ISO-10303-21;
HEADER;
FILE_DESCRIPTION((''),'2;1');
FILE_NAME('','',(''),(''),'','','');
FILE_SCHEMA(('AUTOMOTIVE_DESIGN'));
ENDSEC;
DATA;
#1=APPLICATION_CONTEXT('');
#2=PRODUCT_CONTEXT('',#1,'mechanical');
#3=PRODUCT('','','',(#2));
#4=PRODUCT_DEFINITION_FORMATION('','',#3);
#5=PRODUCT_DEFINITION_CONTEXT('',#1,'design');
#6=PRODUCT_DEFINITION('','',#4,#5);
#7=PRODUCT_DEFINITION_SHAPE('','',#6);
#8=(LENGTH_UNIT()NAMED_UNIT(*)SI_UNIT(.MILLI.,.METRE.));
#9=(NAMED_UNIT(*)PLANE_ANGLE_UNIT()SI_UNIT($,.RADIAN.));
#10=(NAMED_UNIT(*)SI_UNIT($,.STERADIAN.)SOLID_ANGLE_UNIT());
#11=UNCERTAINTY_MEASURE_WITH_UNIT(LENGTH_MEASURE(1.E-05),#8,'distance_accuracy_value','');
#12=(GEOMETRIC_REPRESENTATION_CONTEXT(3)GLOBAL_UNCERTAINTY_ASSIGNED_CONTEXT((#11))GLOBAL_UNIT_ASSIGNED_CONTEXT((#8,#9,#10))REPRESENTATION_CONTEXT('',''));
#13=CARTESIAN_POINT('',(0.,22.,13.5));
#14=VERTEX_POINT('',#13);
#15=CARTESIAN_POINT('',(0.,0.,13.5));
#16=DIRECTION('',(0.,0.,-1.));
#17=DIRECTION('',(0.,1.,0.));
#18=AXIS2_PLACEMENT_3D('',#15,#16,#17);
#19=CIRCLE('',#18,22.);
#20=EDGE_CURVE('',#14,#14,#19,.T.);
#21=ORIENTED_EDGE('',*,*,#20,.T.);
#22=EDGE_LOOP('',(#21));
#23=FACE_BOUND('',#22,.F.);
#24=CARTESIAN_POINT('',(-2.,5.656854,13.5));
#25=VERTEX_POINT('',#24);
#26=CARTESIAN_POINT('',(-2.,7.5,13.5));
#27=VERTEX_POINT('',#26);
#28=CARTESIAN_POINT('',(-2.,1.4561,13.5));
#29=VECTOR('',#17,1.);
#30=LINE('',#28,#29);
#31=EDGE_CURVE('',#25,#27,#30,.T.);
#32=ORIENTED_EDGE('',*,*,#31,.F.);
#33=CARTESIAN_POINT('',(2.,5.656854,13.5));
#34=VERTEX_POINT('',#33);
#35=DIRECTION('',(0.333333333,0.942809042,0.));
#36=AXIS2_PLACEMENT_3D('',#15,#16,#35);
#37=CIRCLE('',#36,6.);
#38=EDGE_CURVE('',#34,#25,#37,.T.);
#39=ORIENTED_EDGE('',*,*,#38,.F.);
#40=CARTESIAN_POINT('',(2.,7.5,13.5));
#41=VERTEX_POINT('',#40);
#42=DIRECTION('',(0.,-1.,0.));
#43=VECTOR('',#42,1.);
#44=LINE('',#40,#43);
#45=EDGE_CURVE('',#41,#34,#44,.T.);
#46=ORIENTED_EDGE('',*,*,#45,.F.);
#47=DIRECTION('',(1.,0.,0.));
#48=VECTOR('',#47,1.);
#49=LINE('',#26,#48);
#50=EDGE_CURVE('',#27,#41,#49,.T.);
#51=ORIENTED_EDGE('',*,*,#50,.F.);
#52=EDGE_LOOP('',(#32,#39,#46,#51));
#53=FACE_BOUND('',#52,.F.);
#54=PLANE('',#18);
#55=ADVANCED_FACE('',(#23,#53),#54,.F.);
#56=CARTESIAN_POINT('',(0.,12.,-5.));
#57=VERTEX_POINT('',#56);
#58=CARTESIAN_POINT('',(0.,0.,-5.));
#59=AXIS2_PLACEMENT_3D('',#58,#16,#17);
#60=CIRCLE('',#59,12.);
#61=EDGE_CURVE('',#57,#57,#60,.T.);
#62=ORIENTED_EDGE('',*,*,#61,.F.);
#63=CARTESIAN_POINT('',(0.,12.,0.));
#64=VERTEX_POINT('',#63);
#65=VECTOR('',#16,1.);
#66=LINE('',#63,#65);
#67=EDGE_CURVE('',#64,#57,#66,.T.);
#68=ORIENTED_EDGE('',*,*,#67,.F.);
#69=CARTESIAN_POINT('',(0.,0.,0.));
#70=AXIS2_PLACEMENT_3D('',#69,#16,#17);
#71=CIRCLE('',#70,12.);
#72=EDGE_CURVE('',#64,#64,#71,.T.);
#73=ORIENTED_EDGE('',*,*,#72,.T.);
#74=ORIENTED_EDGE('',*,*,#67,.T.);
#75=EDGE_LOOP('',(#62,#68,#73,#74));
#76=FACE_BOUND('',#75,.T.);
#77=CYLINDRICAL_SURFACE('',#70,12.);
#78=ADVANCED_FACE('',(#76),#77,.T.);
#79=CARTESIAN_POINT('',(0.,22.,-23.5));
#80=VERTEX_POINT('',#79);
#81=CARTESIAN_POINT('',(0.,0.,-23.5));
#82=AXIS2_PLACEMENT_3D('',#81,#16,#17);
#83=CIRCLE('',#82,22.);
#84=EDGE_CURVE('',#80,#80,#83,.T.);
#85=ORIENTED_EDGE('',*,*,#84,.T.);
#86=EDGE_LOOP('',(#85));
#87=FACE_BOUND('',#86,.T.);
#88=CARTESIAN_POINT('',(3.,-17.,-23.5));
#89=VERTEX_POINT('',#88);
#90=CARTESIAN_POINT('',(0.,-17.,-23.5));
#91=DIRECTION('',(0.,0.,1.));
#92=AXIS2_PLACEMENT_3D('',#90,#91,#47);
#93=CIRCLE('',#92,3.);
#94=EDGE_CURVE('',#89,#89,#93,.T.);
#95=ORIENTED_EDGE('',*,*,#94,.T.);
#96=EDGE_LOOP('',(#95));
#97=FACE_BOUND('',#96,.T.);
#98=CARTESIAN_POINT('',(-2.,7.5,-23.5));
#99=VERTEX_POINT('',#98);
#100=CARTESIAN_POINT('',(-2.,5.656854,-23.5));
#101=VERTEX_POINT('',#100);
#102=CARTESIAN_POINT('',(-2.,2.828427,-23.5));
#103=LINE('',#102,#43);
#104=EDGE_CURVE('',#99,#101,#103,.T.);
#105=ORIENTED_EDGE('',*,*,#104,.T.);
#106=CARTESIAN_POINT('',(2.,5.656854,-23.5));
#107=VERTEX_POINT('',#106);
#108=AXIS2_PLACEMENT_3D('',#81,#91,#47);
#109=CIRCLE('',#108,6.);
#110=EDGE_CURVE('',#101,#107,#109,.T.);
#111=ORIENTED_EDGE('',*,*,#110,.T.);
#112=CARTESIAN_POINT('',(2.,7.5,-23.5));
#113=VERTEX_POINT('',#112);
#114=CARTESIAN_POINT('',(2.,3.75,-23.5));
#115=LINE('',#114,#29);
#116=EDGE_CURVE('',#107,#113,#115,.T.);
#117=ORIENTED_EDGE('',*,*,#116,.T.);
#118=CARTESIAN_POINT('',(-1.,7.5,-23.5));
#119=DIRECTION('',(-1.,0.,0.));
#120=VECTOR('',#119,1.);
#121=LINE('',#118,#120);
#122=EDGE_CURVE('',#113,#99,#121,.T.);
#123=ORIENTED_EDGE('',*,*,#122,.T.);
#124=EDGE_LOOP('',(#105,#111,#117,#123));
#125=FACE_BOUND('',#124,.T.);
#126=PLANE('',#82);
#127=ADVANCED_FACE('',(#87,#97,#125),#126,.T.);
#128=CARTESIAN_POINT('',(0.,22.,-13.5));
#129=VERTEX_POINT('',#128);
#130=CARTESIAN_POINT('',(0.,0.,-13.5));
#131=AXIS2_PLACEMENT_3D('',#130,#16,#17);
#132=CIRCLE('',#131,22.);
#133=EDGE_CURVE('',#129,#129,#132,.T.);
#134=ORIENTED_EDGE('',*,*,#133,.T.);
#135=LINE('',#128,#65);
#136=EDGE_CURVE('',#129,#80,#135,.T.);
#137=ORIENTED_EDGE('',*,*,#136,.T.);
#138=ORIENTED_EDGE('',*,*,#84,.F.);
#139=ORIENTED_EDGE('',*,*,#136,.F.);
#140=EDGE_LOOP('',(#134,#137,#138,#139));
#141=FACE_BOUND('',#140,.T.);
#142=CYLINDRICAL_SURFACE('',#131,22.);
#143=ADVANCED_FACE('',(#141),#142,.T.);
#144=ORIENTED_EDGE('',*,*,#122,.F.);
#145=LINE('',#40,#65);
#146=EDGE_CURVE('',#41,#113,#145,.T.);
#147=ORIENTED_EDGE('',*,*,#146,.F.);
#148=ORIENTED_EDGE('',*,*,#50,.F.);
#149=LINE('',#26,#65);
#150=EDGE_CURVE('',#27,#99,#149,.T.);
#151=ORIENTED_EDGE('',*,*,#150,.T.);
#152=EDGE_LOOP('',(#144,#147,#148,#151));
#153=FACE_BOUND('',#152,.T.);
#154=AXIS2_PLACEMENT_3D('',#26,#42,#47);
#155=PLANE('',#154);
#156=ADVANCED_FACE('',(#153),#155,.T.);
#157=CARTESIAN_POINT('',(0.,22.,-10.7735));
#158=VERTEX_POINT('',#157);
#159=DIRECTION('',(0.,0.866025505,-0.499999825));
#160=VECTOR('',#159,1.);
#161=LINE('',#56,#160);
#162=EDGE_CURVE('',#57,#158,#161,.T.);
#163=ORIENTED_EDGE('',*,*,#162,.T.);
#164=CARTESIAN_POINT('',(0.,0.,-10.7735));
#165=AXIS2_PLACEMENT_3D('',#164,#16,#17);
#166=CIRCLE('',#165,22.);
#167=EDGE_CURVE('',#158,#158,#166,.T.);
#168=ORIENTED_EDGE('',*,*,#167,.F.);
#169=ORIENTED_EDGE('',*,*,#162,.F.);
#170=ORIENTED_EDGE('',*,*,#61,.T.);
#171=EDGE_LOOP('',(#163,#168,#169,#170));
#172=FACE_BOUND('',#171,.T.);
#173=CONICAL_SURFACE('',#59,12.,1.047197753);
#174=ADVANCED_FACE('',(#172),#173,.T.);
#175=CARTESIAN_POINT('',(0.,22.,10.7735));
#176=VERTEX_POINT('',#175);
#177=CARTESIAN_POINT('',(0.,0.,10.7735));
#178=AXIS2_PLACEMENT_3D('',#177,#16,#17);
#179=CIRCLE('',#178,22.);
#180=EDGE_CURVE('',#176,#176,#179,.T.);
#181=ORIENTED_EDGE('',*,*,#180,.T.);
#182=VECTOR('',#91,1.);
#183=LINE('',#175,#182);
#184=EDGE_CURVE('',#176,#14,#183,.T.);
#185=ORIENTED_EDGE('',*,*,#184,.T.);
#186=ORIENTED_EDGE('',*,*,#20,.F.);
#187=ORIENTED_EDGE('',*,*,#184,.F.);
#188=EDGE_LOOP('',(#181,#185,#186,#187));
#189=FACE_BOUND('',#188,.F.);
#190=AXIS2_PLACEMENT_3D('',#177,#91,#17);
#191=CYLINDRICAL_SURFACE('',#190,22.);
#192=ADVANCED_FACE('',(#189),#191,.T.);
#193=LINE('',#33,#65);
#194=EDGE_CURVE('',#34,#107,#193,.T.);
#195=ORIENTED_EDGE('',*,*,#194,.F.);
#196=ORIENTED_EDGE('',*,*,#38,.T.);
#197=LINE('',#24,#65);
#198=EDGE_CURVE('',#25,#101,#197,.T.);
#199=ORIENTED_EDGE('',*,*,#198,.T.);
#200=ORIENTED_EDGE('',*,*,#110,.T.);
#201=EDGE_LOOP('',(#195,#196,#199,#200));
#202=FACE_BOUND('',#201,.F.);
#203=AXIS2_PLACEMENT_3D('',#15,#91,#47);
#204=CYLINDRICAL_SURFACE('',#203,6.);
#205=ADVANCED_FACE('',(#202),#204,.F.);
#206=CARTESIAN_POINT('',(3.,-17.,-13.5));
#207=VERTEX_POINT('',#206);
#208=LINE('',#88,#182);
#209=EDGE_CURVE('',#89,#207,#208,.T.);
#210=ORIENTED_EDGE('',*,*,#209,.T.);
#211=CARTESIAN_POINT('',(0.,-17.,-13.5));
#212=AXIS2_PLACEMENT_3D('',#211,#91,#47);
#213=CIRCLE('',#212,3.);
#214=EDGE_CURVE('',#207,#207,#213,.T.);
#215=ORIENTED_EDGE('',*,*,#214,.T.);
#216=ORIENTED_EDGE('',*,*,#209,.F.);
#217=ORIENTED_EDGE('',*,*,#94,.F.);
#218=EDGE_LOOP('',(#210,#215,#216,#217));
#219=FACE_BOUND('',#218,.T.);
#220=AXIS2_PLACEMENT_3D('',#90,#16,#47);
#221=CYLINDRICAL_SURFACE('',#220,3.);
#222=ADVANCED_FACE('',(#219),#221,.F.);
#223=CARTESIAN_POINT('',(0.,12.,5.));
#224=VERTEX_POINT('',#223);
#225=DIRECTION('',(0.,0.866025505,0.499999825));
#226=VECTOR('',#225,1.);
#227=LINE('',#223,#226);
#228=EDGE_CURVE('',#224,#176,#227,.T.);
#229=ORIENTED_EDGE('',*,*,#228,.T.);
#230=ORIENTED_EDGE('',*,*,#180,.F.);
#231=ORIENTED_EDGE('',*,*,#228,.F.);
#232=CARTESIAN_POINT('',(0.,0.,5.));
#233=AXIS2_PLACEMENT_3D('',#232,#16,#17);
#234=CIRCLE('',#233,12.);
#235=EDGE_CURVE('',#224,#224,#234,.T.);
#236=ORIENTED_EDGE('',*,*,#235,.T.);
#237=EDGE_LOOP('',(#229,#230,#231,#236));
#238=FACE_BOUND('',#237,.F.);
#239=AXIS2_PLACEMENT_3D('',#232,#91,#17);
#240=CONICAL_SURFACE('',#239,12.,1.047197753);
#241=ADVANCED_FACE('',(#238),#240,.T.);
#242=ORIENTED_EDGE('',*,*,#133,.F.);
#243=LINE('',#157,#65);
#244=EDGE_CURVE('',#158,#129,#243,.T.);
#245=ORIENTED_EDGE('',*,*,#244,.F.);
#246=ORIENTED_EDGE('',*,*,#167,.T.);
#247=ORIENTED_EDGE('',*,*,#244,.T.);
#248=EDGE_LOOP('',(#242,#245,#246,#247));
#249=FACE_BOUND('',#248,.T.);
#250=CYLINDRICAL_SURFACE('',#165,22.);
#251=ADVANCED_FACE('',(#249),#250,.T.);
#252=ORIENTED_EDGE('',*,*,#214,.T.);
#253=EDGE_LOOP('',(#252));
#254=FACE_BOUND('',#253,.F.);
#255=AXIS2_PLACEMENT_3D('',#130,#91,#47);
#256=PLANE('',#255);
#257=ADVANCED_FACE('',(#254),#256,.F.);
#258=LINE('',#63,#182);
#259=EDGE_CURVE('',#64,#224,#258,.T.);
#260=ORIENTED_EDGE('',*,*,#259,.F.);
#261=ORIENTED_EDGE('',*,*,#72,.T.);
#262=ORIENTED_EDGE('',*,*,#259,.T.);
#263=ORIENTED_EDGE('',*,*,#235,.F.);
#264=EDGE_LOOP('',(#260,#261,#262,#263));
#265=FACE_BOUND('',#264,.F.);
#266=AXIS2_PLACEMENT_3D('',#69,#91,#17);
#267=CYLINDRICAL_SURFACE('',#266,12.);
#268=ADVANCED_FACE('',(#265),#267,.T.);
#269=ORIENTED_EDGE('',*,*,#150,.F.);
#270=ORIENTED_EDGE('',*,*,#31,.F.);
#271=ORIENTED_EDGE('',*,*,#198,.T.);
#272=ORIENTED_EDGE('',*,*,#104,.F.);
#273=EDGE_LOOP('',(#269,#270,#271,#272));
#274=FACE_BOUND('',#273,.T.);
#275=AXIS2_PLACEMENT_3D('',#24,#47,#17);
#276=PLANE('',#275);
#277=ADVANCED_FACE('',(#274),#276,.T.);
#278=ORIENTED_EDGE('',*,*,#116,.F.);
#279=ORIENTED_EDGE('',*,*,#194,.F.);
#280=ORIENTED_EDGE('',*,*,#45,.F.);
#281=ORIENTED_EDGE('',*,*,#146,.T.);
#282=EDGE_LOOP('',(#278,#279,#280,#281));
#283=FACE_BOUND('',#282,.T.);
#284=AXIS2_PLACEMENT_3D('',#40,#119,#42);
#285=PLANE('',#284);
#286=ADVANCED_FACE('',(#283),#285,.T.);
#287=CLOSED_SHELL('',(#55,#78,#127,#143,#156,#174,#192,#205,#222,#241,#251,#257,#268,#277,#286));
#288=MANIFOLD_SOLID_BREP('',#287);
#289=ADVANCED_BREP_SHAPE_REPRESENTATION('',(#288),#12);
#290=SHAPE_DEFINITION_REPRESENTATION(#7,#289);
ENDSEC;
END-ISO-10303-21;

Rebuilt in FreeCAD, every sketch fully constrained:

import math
import FreeCAD as App
import Part
import Sketcher
from FreeCAD import Vector
Q = App.Units.Quantity

doc = App.newDocument("Part")
body = doc.addObject("PartDesign::Body", "Body")

sketch1 = doc.addObject("Sketcher::SketchObject", "Sketch")
body.addObject(sketch1)
sketch1.AttachmentSupport = (doc.YZ_Plane, [""])
sketch1.MapMode = "FlatFace"
sketch1.addGeometry([
    Part.LineSegment(Vector(12, -5, 0), Vector(12, 5, 0)),
    Part.LineSegment(Vector(12, 5, 0), Vector(22, 10.7735, 0)),
    Part.LineSegment(Vector(22, 10.7735, 0), Vector(22, 13.5, 0)),
    Part.LineSegment(Vector(22, 13.5, 0), Vector(0, 13.5, 0)),
    Part.LineSegment(Vector(0, 13.5, 0), Vector(0, -23.5, 0)),
    Part.LineSegment(Vector(0, -23.5, 0), Vector(22, -23.5, 0)),
    Part.LineSegment(Vector(22, -23.5, 0), Vector(22, -10.7735, 0)),
    Part.LineSegment(Vector(22, -10.7735, 0), Vector(12, -5, 0)),
], False)
sketch1.addConstraint([
    Sketcher.Constraint("Coincident", 0, 2, 1, 1),
    Sketcher.Constraint("Coincident", 1, 2, 2, 1),
    Sketcher.Constraint("Coincident", 2, 2, 3, 1),
    Sketcher.Constraint("Coincident", 3, 2, 4, 1),
    Sketcher.Constraint("Coincident", 4, 2, 5, 1),
    Sketcher.Constraint("Coincident", 5, 2, 6, 1),
    Sketcher.Constraint("Coincident", 6, 2, 7, 1),
    Sketcher.Constraint("Coincident", 7, 2, 0, 1),
    Sketcher.Constraint("Vertical", 0),
    Sketcher.Constraint("Vertical", 2),
    Sketcher.Constraint("Horizontal", 3),
    Sketcher.Constraint("Vertical", 4),
    Sketcher.Constraint("Horizontal", 5),
    Sketcher.Constraint("Vertical", 6),
    Sketcher.Constraint("Symmetric", 1, 2, 6, 2, -1),
    Sketcher.Constraint("PointOnObject", 3, 2, -2),
    Sketcher.Constraint("Equal", 1, 7),
    Sketcher.Constraint("DistanceX", 3, 2, 3, 1, Q("22 mm")),
    Sketcher.Constraint("DistanceY", 0, 1, 0, 2, Q("10 mm")),
    Sketcher.Constraint("DistanceX", 0, 2, 1, 2, Q("10 mm")),
    Sketcher.Constraint("DistanceY", -1, 1, 2, 2, Q("13.5 mm")),
    Sketcher.Constraint("DistanceY", 4, 2, 4, 1, Q("37 mm")),
    Sketcher.Constraint("Angle", 1, Q("30 deg")),
])
revolution = doc.addObject("PartDesign::Revolution", "Revolution")
body.addObject(revolution)
revolution.Profile = sketch1
revolution.ReferenceAxis = (sketch1, ["V_Axis"])
revolution.Angle = 360

sketch2 = doc.addObject("Sketcher::SketchObject", "Sketch001")
body.addObject(sketch2)
sketch2.AttachmentSupport = (doc.XY_Plane, [""])
sketch2.MapMode = "FlatFace"
sketch2.AttachmentOffset = App.Placement(Vector(0, 0, 13.5), App.Rotation())
sketch2.addGeometry([
    Part.ArcOfCircle(Part.Circle(Vector(0, 0, 0), Vector(0, 0, 1), 6), math.radians(109.471221), math.radians(430.528779)),
    Part.LineSegment(Vector(2, 5.656854, 0), Vector(2, 7.5, 0)),
    Part.LineSegment(Vector(2, 7.5, 0), Vector(-2, 7.5, 0)),
    Part.LineSegment(Vector(-2, 7.5, 0), Vector(-2, 5.656854, 0)),
], False)
sketch2.addConstraint([
    Sketcher.Constraint("Coincident", 0, 2, 1, 1),
    Sketcher.Constraint("Coincident", 1, 2, 2, 1),
    Sketcher.Constraint("Coincident", 2, 2, 3, 1),
    Sketcher.Constraint("Coincident", 3, 2, 0, 1),
    Sketcher.Constraint("Vertical", 1),
    Sketcher.Constraint("Horizontal", 2),
    Sketcher.Constraint("Vertical", 3),
    Sketcher.Constraint("Coincident", 0, 3, -1, 1),
    Sketcher.Constraint("Horizontal", 0, 2, 3, 2),
    Sketcher.Constraint("Radius", 0, Q("6 mm")),
    Sketcher.Constraint("DistanceX", 2, 2, 2, 1, Q("4 mm")),
    Sketcher.Constraint("DistanceY", -1, 1, 1, 2, Q("7.5 mm")),
])
pocket1 = doc.addObject("PartDesign::Pocket", "Pocket")
body.addObject(pocket1)
pocket1.Profile = sketch2
pocket1.Type = "ThroughAll"

sketch3 = doc.addObject("Sketcher::SketchObject", "Sketch002")
body.addObject(sketch3)
sketch3.AttachmentSupport = (doc.XY_Plane, [""])
sketch3.MapMode = "FlatFace"
sketch3.AttachmentOffset = App.Placement(Vector(0, 0, -23.5), App.Rotation())
sketch3.addGeometry(Part.Circle(Vector(0, -17, 0), Vector(0, 0, 1), 3), False)
sketch3.addConstraint([
    Sketcher.Constraint("PointOnObject", 0, 3, -2),
    Sketcher.Constraint("Diameter", 0, Q("6 mm")),
    Sketcher.Constraint("DistanceY", 0, 3, -1, 1, Q("17 mm")),
])
pocket2 = doc.addObject("PartDesign::Pocket", "Pocket001")
body.addObject(pocket2)
pocket2.Profile = sketch3
pocket2.Length = 10
pocket2.Reversed = True

doc.recompute()
